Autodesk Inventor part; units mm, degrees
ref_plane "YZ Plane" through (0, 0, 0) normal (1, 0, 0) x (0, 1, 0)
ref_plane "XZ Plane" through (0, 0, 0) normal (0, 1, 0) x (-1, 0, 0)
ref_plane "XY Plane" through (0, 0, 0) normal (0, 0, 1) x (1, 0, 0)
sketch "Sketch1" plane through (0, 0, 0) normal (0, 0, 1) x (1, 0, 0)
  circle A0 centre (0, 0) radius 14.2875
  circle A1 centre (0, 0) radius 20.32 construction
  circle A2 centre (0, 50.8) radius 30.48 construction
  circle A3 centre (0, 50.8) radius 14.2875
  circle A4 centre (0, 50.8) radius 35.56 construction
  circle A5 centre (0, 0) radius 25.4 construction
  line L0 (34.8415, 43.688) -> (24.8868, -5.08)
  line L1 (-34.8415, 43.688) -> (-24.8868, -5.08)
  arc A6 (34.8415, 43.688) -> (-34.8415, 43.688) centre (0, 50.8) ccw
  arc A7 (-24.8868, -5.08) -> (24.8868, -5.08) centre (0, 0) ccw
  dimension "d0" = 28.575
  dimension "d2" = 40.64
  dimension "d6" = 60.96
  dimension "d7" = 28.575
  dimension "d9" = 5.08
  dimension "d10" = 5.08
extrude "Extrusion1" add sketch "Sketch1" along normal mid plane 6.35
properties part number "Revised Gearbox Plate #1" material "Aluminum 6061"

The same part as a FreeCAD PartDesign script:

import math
import FreeCAD as App
import Part
import Sketcher
Q = App.Units.Quantity

doc = App.newDocument("Part")
body = doc.addObject("PartDesign::Body", "Body")

# Sketch on XY plane
sketch1 = body.newObject("Sketcher::SketchObject", "Sketch")
sketch1.AttachmentSupport = (doc.getObject("XY_Plane"), [""])
sketch1.MapMode = "FlatFace"
sketch1.addGeometry([
    Part.LineSegment(App.Vector(25, -5, 0), App.Vector(35, 44, 0)),  # 0
    Part.ArcOfCircle(Part.Circle(App.Vector(0, 51, 0), App.Vector(0, 0, 1), 36), math.radians(-12), math.radians(192)),  # 1
    Part.LineSegment(App.Vector(-35, 44, 0), App.Vector(-25, -5, 0)),  # 2
    Part.ArcOfCircle(Part.Circle(App.Vector(0, 0, 0), App.Vector(0, 0, 1), 25), math.radians(-168), math.radians(-12)),  # 3
    Part.Circle(App.Vector(0, 0, 0), App.Vector(0, 0, 1), 14),  # 4
    Part.Circle(App.Vector(0, 51, 0), App.Vector(0, 0, 1), 14),  # 5
], False)
sketch1.addConstraint([
    Sketcher.Constraint("Tangent", 0, 2, 1, 1),
    Sketcher.Constraint("Tangent", 1, 2, 2, 1),
    Sketcher.Constraint("Tangent", 2, 2, 3, 1),
    Sketcher.Constraint("Tangent", 3, 2, 0, 1),
    Sketcher.Constraint("Coincident", 3, 3, -1, 1),
    Sketcher.Constraint("Coincident", 4, 3, -1, 1),
    Sketcher.Constraint("Coincident", 5, 3, 1, 3),
    Sketcher.Constraint("Equal", 4, 5),
    Sketcher.Constraint("PointOnObject", 1, 3, -2),
    Sketcher.Constraint("Diameter", 4, Q("1.125 in")),
    Sketcher.Constraint("Radius", 3, Q("1 in")),
    Sketcher.Constraint("DistanceY", 2, 2, -1, 1, Q("0.2 in")),
    Sketcher.Constraint("Radius", 1, Q("1.4 in")),
])
pad1 = body.newObject("PartDesign::Pad", "Pad")
pad1.Profile = sketch1
pad1.Length = Q("0.25 in")
pad1.Midplane = True

doc.recompute()
